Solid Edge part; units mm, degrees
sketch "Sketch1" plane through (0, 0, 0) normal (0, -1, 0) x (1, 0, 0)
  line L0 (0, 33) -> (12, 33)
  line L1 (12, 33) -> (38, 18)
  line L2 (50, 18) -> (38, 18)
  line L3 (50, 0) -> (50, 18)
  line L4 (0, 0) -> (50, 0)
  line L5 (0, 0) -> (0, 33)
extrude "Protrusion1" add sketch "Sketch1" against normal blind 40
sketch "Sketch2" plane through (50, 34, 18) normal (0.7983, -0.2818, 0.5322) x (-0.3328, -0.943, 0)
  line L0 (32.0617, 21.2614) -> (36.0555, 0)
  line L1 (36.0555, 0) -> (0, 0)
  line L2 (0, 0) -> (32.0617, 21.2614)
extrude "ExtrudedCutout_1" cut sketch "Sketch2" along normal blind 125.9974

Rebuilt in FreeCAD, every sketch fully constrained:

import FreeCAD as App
import Part
import Sketcher
from FreeCAD import Vector
Q = App.Units.Quantity

doc = App.newDocument("Part")
body = doc.addObject("PartDesign::Body", "Body")

# Sketch on XZ plane
sketch1 = body.newObject("Sketcher::SketchObject", "Sketch")
sketch1.AttachmentSupport = (doc.getObject("XZ_Plane"), [""])
sketch1.MapMode = "FlatFace"
sketch1.addGeometry(Part.LineSegment(Vector(12, 33, 0), Vector(0, 33, 0)), False)
sketch1.addGeometry(Part.LineSegment(Vector(0, 33, 0), Vector(0, 0, 0)), False)
sketch1.addGeometry(Part.LineSegment(Vector(0, 0, 0), Vector(50, 0, 0)), False)
sketch1.addGeometry(Part.LineSegment(Vector(50, 0, 0), Vector(50, 18, 0)), False)
sketch1.addGeometry(Part.LineSegment(Vector(50, 18, 0), Vector(38, 18, 0)), False)
sketch1.addGeometry(Part.LineSegment(Vector(38, 18, 0), Vector(12, 33, 0)), False)
sketch1.addConstraint(Sketcher.Constraint("Coincident", 0, 2, 1, 1))
sketch1.addConstraint(Sketcher.Constraint("Coincident", 1, 2, 2, 1))
sketch1.addConstraint(Sketcher.Constraint("Coincident", 2, 2, 3, 1))
sketch1.addConstraint(Sketcher.Constraint("Coincident", 3, 2, 4, 1))
sketch1.addConstraint(Sketcher.Constraint("Coincident", 4, 2, 5, 1))
sketch1.addConstraint(Sketcher.Constraint("Coincident", 5, 2, 0, 1))
sketch1.addConstraint(Sketcher.Constraint("Horizontal", 0))
sketch1.addConstraint(Sketcher.Constraint("Vertical", 1))
sketch1.addConstraint(Sketcher.Constraint("Horizontal", 2))
sketch1.addConstraint(Sketcher.Constraint("Vertical", 3))
sketch1.addConstraint(Sketcher.Constraint("Horizontal", 4))
sketch1.addConstraint(Sketcher.Constraint("Coincident", 1, 2, -1, 1))
sketch1.addConstraint(Sketcher.Constraint("Equal", 0, 4))
sketch1.addConstraint(Sketcher.Constraint("DistanceX", 0, 2, 0, 1, 12.0))
sketch1.addConstraint(Sketcher.Constraint("DistanceX", 2, 1, 2, 2, 50.0))
sketch1.addConstraint(Sketcher.Constraint("DistanceY", 1, 2, 1, 1, 33.0))
sketch1.addConstraint(Sketcher.Constraint("DistanceY", 3, 1, 3, 2, 18.0))
pad1 = body.newObject("PartDesign::Pad", "Pad")
pad1.Profile = sketch1
pad1.Length = 40
pad1.Reversed = True

# Sketch on an angled plane
sketch2 = body.newObject("Sketcher::SketchObject", "Sketch001")
sketch2.Placement = App.Placement(Vector(50, 34, 18), App.Rotation(Vector(-0.332849619, -0.94297992, -0.000033616), Vector(0.501880709, -0.177121845, -0.846607114), Vector(0.798327555, -0.281809727, 0.53221837), "ZXY"))
sketch2.addGeometry(Part.LineSegment(Vector(36, 0, 0), Vector(32, 21, 0)), False)
sketch2.addGeometry(Part.LineSegment(Vector(32, 21, 0), Vector(0, 0, 0)), False)
sketch2.addGeometry(Part.LineSegment(Vector(0, 0, 0), Vector(36, 0, 0)), False)
sketch2.addConstraint(Sketcher.Constraint("Coincident", 0, 2, 1, 1))
sketch2.addConstraint(Sketcher.Constraint("Coincident", 1, 2, 2, 1))
sketch2.addConstraint(Sketcher.Constraint("Coincident", 2, 2, 0, 1))
sketch2.addConstraint(Sketcher.Constraint("Horizontal", 2))
sketch2.addConstraint(Sketcher.Constraint("Coincident", 1, 2, -1, 1))
sketch2.addConstraint(Sketcher.Constraint("Angle", 1, Q("-146.45 deg")))
sketch2.addConstraint(Sketcher.Constraint("DistanceX", 2, 1, 2, 2, 36.0555))
sketch2.addConstraint(Sketcher.Constraint("Distance", 0, 21.6333))
pocket1 = body.newObject("PartDesign::Pocket", "Pocket")
pocket1.Profile = sketch2
pocket1.Length = 125.9974
pocket1.Reversed = True

doc.recompute()
